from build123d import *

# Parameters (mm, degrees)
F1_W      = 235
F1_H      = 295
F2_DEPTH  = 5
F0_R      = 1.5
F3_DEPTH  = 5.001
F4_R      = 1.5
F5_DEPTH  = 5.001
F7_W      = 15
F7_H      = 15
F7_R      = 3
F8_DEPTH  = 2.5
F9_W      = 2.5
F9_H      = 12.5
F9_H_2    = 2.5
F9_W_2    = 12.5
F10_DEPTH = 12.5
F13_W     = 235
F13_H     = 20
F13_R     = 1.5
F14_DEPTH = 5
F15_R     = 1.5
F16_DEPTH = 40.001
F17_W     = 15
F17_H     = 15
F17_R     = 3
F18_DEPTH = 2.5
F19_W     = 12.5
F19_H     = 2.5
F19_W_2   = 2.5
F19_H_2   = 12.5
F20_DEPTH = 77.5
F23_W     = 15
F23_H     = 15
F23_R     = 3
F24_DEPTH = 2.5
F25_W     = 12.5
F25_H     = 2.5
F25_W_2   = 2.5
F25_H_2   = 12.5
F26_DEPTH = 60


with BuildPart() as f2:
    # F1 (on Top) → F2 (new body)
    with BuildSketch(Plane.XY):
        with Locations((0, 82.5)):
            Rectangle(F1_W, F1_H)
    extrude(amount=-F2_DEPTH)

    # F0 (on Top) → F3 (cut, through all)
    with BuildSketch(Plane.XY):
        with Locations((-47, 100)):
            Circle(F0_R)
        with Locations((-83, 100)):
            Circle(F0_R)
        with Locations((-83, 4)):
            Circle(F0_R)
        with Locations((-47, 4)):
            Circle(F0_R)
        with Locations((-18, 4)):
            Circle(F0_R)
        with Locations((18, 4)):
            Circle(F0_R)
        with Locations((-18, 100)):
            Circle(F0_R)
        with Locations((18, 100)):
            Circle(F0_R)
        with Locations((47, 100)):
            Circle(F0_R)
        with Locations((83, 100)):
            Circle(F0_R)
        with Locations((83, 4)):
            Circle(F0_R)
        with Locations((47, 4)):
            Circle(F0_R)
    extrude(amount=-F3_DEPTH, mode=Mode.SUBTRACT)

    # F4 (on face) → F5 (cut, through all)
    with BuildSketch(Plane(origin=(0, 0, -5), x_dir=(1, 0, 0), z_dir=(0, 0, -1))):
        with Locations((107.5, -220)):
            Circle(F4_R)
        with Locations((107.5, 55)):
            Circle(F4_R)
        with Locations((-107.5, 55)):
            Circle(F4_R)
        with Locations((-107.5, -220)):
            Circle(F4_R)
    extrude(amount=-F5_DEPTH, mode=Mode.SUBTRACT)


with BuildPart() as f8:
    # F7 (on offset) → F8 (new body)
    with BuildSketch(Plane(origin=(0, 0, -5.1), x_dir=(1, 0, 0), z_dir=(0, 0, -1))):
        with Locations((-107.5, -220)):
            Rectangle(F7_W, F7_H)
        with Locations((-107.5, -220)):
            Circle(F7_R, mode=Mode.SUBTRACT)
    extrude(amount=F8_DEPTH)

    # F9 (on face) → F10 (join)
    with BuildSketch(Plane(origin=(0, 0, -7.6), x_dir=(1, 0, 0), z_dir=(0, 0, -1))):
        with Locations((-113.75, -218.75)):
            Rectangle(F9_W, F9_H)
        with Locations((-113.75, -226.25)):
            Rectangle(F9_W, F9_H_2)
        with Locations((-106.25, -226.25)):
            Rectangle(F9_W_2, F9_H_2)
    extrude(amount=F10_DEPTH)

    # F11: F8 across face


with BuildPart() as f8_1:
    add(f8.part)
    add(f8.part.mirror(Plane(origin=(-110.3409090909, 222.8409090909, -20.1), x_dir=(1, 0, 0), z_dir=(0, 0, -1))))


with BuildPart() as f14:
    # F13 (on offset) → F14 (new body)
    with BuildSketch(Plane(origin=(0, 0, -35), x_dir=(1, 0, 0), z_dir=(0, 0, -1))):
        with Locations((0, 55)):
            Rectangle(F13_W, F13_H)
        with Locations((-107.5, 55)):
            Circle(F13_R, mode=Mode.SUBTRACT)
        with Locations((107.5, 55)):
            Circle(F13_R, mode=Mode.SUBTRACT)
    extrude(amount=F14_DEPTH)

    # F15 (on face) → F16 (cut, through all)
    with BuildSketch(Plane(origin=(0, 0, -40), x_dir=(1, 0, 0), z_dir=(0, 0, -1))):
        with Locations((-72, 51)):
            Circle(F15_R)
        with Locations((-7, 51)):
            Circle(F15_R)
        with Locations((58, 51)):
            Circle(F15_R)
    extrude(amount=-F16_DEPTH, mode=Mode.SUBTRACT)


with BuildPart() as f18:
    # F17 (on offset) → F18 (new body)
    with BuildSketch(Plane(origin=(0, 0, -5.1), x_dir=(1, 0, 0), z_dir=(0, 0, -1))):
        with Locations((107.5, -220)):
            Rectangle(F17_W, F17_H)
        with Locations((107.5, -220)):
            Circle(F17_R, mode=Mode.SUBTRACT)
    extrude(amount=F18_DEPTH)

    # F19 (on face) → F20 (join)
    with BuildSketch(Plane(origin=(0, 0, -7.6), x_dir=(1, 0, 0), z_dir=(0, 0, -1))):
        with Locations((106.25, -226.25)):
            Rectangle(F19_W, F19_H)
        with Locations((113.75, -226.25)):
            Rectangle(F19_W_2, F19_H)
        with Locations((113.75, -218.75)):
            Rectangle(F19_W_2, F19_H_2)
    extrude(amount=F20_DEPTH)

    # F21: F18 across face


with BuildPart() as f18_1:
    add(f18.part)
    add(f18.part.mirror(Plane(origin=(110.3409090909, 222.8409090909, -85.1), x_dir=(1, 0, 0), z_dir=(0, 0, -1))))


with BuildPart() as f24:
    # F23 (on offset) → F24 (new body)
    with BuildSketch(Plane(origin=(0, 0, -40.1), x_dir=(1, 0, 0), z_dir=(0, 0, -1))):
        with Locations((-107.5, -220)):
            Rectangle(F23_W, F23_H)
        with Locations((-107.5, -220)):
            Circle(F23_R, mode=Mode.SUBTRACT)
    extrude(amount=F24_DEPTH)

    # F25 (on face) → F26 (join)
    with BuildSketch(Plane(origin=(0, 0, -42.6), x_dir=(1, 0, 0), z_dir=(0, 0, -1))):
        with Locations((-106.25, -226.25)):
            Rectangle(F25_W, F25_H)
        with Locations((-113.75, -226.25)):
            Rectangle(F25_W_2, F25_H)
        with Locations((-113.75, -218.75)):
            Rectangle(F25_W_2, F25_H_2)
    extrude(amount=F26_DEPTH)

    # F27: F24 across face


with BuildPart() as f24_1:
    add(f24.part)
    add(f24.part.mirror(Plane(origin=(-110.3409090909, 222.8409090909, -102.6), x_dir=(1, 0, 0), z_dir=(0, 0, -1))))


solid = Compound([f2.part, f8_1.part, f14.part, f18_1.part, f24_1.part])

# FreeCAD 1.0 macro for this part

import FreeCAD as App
import Part
import Sketcher
from FreeCAD import Vector
Q = App.Units.Quantity


def add_polygon(sketch, points):
    """Adds a closed chain of lines whose ends are joined by coincident constraints."""
    first, n = sketch.GeometryCount, len(points)
    for a, b in zip(points, points[1:] + points[:1]):
        sketch.addGeometry(Part.LineSegment(App.Vector(*a, 0), App.Vector(*b, 0)), False)
    for i in range(n):
        sketch.addConstraint(Sketcher.Constraint("Coincident", first + i, 2, first + (i + 1) % n, 1))

doc = App.newDocument("Part")
body = doc.addObject("PartDesign::Body", "Body")

# Sketch on XY plane
sketch1 = body.newObject("Sketcher::SketchObject", "Sketch")
sketch1.AttachmentSupport = (doc.getObject("XY_Plane"), [""])
sketch1.MapMode = "FlatFace"
add_polygon(sketch1, [(-118, 230), (-118, -65), (118, -65), (118, 230)])  # lines 0-3
sketch1.addConstraint([
    Sketcher.Constraint("Vertical", 0),
    Sketcher.Constraint("Horizontal", 1),
    Sketcher.Constraint("Vertical", 2),
    Sketcher.Constraint("Horizontal", 3),
    Sketcher.Constraint("DistanceX", 1, 1, 1, 2, Q("235 mm")),
    Sketcher.Constraint("DistanceY", 0, 2, 0, 1, Q("295 mm")),
    Sketcher.Constraint("DistanceY", 0, 2, -1, 1, Q("65 mm")),
    Sketcher.Constraint("DistanceX", 0, 2, -1, 1, Q("117.5 mm")),
])
pad1 = body.newObject("PartDesign::Pad", "Pad")
pad1.Profile = sketch1
pad1.Length = 5
pad1.Reversed = True

# Sketch on XY plane
sketch2 = body.newObject("Sketcher::SketchObject", "Sketch001")
sketch2.AttachmentSupport = (doc.getObject("XY_Plane"), [""])
sketch2.MapMode = "FlatFace"
sketch2.addGeometry([
    Part.Circle(Vector(-47, 100, 0), Vector(0, 0, 1), 1.5),  # 0
    Part.Circle(Vector(-83, 100, 0), Vector(0, 0, 1), 1.5),  # 1
    Part.Circle(Vector(-83, 4, 0), Vector(0, 0, 1), 1.5),  # 2
    Part.Circle(Vector(-47, 4, 0), Vector(0, 0, 1), 1.5),  # 3
    Part.Circle(Vector(-18, 4, 0), Vector(0, 0, 1), 1.5),  # 4
    Part.Circle(Vector(18, 4, 0), Vector(0, 0, 1), 1.5),  # 5
    Part.Circle(Vector(-18, 100, 0), Vector(0, 0, 1), 1.5),  # 6
    Part.Circle(Vector(18, 100, 0), Vector(0, 0, 1), 1.5),  # 7
    Part.Circle(Vector(47, 100, 0), Vector(0, 0, 1), 1.5),  # 8
    Part.Circle(Vector(83, 100, 0), Vector(0, 0, 1), 1.5),  # 9
    Part.Circle(Vector(83, 4, 0), Vector(0, 0, 1), 1.5),  # 10
    Part.Circle(Vector(47, 4, 0), Vector(0, 0, 1), 1.5),  # 11
], False)
sketch2.addConstraint([
    Sketcher.Constraint("Equal", 0, 1),
    Sketcher.Constraint("Equal", 1, 2),
    Sketcher.Constraint("Equal", 2, 3),
    Sketcher.Constraint("Equal", 3, 4),
    Sketcher.Constraint("Equal", 4, 5),
    Sketcher.Constraint("Equal", 5, 6),
    Sketcher.Constraint("Equal", 6, 7),
    Sketcher.Constraint("Equal", 7, 8),
    Sketcher.Constraint("Equal", 8, 9),
    Sketcher.Constraint("Equal", 9, 10),
    Sketcher.Constraint("Equal", 10, 11),
    Sketcher.Constraint("Symmetric", 4, 3, 5, 3, -2),
    Sketcher.Constraint("Symmetric", 6, 3, 7, 3, -2),
    Sketcher.Constraint("Symmetric", 0, 3, 8, 3, -2),
    Sketcher.Constraint("Symmetric", 1, 3, 9, 3, -2),
    Sketcher.Constraint("Symmetric", 2, 3, 10, 3, -2),
    Sketcher.Constraint("Symmetric", 3, 3, 11, 3, -2),
    Sketcher.Constraint("Horizontal", 0, 3, 1, 3),
    Sketcher.Constraint("Horizontal", 2, 3, 3, 3),
    Sketcher.Constraint("Horizontal", 3, 3, 4, 3),
    Sketcher.Constraint("Horizontal", 1, 3, 6, 3),
    Sketcher.Constraint("Vertical", 1, 3, 2, 3),
    Sketcher.Constraint("Vertical", 0, 3, 3, 3),
    Sketcher.Constraint("Vertical", 4, 3, 6, 3),
    Sketcher.Constraint("Diameter", 0, Q("3 mm")),
    Sketcher.Constraint("DistanceX", 0, 3, -1, 1, Q("47 mm")),
    Sketcher.Constraint("DistanceY", -1, 1, 0, 3, Q("100 mm")),
    Sketcher.Constraint("DistanceX", 1, 3, -1, 1, Q("83 mm")),
    Sketcher.Constraint("DistanceY", -1, 1, 2, 3, Q("4 mm")),
    Sketcher.Constraint("DistanceX", 4, 3, -1, 1, Q("18 mm")),
])
pocket1 = body.newObject("PartDesign::Pocket", "Pocket")
pocket1.Profile = sketch2
pocket1.Type = "ThroughAll"

# Sketch on XY plane
sketch3 = body.newObject("Sketcher::SketchObject", "Sketch002")
sketch3.AttachmentSupport = (doc.getObject("XY_Plane"), [""])
sketch3.MapMode = "FlatFace"
sketch3.AttachmentOffset = App.Placement(Vector(0, 0, -5), App.Rotation())
sketch3.addGeometry([
    Part.Circle(Vector(107.5, 220, 0), Vector(0, 0, 1), 1.5),
    Part.Circle(Vector(107.5, -55, 0), Vector(0, 0, 1), 1.5),
    Part.Circle(Vector(-107.5, -55, 0), Vector(0, 0, 1), 1.5),
    Part.Circle(Vector(-107.5, 220, 0), Vector(0, 0, 1), 1.5),
], False)
sketch3.addConstraint([
    Sketcher.Constraint("Equal", 0, 1),
    Sketcher.Constraint("Equal", 1, 2),
    Sketcher.Constraint("Equal", 2, 3),
    Sketcher.Constraint("Symmetric", 1, 3, 2, 3, -2),
    Sketcher.Constraint("Symmetric", 0, 3, 3, 3, -2),
    Sketcher.Constraint("Vertical", 0, 3, 1, 3),
    Sketcher.Constraint("Diameter", 0, Q("3 mm")),
    Sketcher.Constraint("DistanceY", -1, 1, 0, 3, Q("220 mm")),
    Sketcher.Constraint("DistanceY", 1, 3, -1, 1, Q("55 mm")),
    Sketcher.Constraint("DistanceX", 2, 3, 1, 3, Q("215 mm")),
])
pocket2 = body.newObject("PartDesign::Pocket", "Pocket001")
pocket2.Profile = sketch3
pocket2.Type = "ThroughAll"
pocket2.Reversed = True
body2 = doc.addObject("PartDesign::Body", "Body001")

# Sketch on XY plane
sketch4 = body2.newObject("Sketcher::SketchObject", "Sketch003")
sketch4.AttachmentSupport = (doc.getObject("XY_Plane001"), [""])
sketch4.MapMode = "FlatFace"
sketch4.AttachmentOffset = App.Placement(Vector(0, 0, -5.1), App.Rotation())
add_polygon(sketch4, [(-115, 212.5), (-115, 227.5), (-100, 227.5), (-100, 212.5)])  # lines 0-3
sketch4.addGeometry(Part.Circle(Vector(-107.5, 220, 0), Vector(0, 0, 1), 3), False)  # 4
sketch4.addConstraint([
    Sketcher.Constraint("Vertical", 0),
    Sketcher.Constraint("Horizontal", 1),
    Sketcher.Constraint("Vertical", 2),
    Sketcher.Constraint("Horizontal", 3),
    Sketcher.Constraint("Equal", 3, 0),
    Sketcher.Constraint("Diameter", 4, Q("6 mm")),
    Sketcher.Constraint("DistanceX", 1, 1, 1, 2, Q("15 mm")),
    Sketcher.Constraint("DistanceY", -1, 1, 4, 3, Q("220 mm")),
    Sketcher.Constraint("DistanceX", 0, 2, -1, 1, Q("115 mm")),
    Sketcher.Constraint("DistanceX", 4, 3, -1, 1, Q("107.5 mm")),
    Sketcher.Constraint("DistanceY", -1, 1, 0, 2, Q("227.5 mm")),
])
pad2 = body2.newObject("PartDesign::Pad", "Pad001")
pad2.Profile = sketch4
pad2.Length = 2.5
pad2.Reversed = True

# Sketch on XY plane
sketch5 = body2.newObject("Sketcher::SketchObject", "Sketch004")
sketch5.AttachmentSupport = (doc.getObject("XY_Plane001"), [""])
sketch5.MapMode = "FlatFace"
sketch5.AttachmentOffset = App.Placement(Vector(0, 0, -7.6), App.Rotation())
add_polygon(sketch5, [(-115, 212.5), (-115, 227.5), (-100, 227.5), (-100, 225), (-112.5, 225), (-112.5, 212.5)])  # lines 0-5
sketch5.addConstraint([
    Sketcher.Constraint("Vertical", 0),
    Sketcher.Constraint("Horizontal", 1),
    Sketcher.Constraint("Vertical", 2),
    Sketcher.Constraint("Horizontal", 3),
    Sketcher.Constraint("Vertical", 4),
    Sketcher.Constraint("Horizontal", 5),
    Sketcher.Constraint("Equal", 1, 0),
    Sketcher.Constraint("Equal", 5, 2),
    Sketcher.Constraint("DistanceX", 1, 1, 1, 2, Q("15 mm")),
    Sketcher.Constraint("DistanceX", 3, 2, 3, 1, Q("12.5 mm")),
    Sketcher.Constraint("DistanceX", 0, 2, -1, 1, Q("115 mm")),
    Sketcher.Constraint("DistanceY", -1, 1, 2, 2, Q("225 mm")),
])
pad3 = body2.newObject("PartDesign::Pad", "Pad002")
pad3.Profile = sketch5
pad3.Length = 12.5
pad3.Reversed = True
body3 = doc.addObject("PartDesign::Body", "Body002")
doc.recompute()

body3.BaseFeature = body2
doc.recompute()

mirroring = doc.addObject("Part::Mirroring", "Mirroring")
mirroring.Source = body2
mirroring.Base = Vector(-110.340909, 222.840909, -20.1)
mirroring.Normal = Vector(0, 0, -1)
body4 = doc.addObject("PartDesign::Body", "Body003")
body4.BaseFeature = mirroring
boolean = body3.newObject("PartDesign::Boolean", "Boolean")
boolean.Type = "Fuse"
boolean.addObjects([body4])
doc.recompute()
body5 = doc.addObject("PartDesign::Body", "Body004")

# Sketch on XY plane
sketch6 = body5.newObject("Sketcher::SketchObject", "Sketch005")
sketch6.AttachmentSupport = (doc.getObject("XY_Plane004"), [""])
sketch6.MapMode = "FlatFace"
sketch6.AttachmentOffset = App.Placement(Vector(0, 0, -35), App.Rotation())
add_polygon(sketch6, [(-117.5, -65), (-117.5, -45), (117.5, -45), (117.5, -65)])  # lines 0-3
sketch6.addGeometry(Part.Circle(Vector(-107.5, -55, 0), Vector(0, 0, 1), 1.5), False)  # 4
sketch6.addGeometry(Part.Circle(Vector(107.5, -55, 0), Vector(0, 0, 1), 1.5), False)  # 5
sketch6.addConstraint([
    Sketcher.Constraint("Vertical", 0),
    Sketcher.Constraint("Horizontal", 1),
    Sketcher.Constraint("Vertical", 2),
    Sketcher.Constraint("Horizontal", 3),
    Sketcher.Constraint("Equal", 4, 5),
    Sketcher.Constraint("Symmetric", 4, 3, 5, 3, -2),
    Sketcher.Constraint("Diameter", 4, Q("3 mm")),
    Sketcher.Constraint("DistanceX", 1, 1, 1, 2, Q("235 mm")),
    Sketcher.Constraint("DistanceY", 0, 1, 0, 2, Q("20 mm")),
    Sketcher.Constraint("DistanceY", 4, 3, -1, 1, Q("55 mm")),
    Sketcher.Constraint("DistanceY", 0, 2, -1, 1, Q("45 mm")),
    Sketcher.Constraint("DistanceX", 4, 3, 5, 3, Q("215 mm")),
    Sketcher.Constraint("DistanceX", 0, 2, 4, 3, Q("10 mm")),
])
pad4 = body5.newObject("PartDesign::Pad", "Pad003")
pad4.Profile = sketch6
pad4.Length = 5
pad4.Reversed = True

# Sketch on XY plane
sketch7 = body5.newObject("Sketcher::SketchObject", "Sketch006")
sketch7.AttachmentSupport = (doc.getObject("XY_Plane004"), [""])
sketch7.MapMode = "FlatFace"
sketch7.AttachmentOffset = App.Placement(Vector(0, 0, -40), App.Rotation())
sketch7.addGeometry([
    Part.Circle(Vector(-72, -51, 0), Vector(0, 0, 1), 1.5),
    Part.Circle(Vector(-7, -51, 0), Vector(0, 0, 1), 1.5),
    Part.Circle(Vector(58, -51, 0), Vector(0, 0, 1), 1.5),
], False)
sketch7.addConstraint([
    Sketcher.Constraint("Equal", 0, 1),
    Sketcher.Constraint("Equal", 1, 2),
    Sketcher.Constraint("Horizontal", 0, 3, 1, 3),
    Sketcher.Constraint("Horizontal", 1, 3, 2, 3),
    Sketcher.Constraint("Diameter", 0, Q("3 mm")),
    Sketcher.Constraint("DistanceX", 0, 3, -1, 1, Q("72 mm")),
    Sketcher.Constraint("DistanceY", 0, 3, -1, 1, Q("51 mm")),
    Sketcher.Constraint("DistanceX", 1, 3, -1, 1, Q("7 mm")),
    Sketcher.Constraint("DistanceX", -1, 1, 2, 3, Q("58 mm")),
])
pocket3 = body5.newObject("PartDesign::Pocket", "Pocket002")
pocket3.Profile = sketch7
pocket3.Type = "ThroughAll"
pocket3.Reversed = True
body6 = doc.addObject("PartDesign::Body", "Body005")

# Sketch on XY plane
sketch8 = body6.newObject("Sketcher::SketchObject", "Sketch007")
sketch8.AttachmentSupport = (doc.getObject("XY_Plane005"), [""])
sketch8.MapMode = "FlatFace"
sketch8.AttachmentOffset = App.Placement(Vector(0, 0, -5.1), App.Rotation())
add_polygon(sketch8, [(100, 212.5), (100, 227.5), (115, 227.5), (115, 212.5)])  # lines 0-3
sketch8.addGeometry(Part.Circle(Vector(107.5, 220, 0), Vector(0, 0, 1), 3), False)  # 4
sketch8.addConstraint([
    Sketcher.Constraint("Vertical", 0),
    Sketcher.Constraint("Horizontal", 1),
    Sketcher.Constraint("Vertical", 2),
    Sketcher.Constraint("Horizontal", 3),
    Sketcher.Constraint("Equal", 3, 0),
    Sketcher.Constraint("Diameter", 4, Q("6 mm")),
    Sketcher.Constraint("DistanceX", 1, 1, 1, 2, Q("15 mm")),
    Sketcher.Constraint("DistanceY", -1, 1, 4, 3, Q("220 mm")),
    Sketcher.Constraint("DistanceX", -1, 1, 0, 2, Q("100 mm")),
    Sketcher.Constraint("DistanceX", -1, 1, 4, 3, Q("107.5 mm")),
    Sketcher.Constraint("DistanceY", -1, 1, 0, 2, Q("227.5 mm")),
])
pad5 = body6.newObject("PartDesign::Pad", "Pad004")
pad5.Profile = sketch8
pad5.Length = 2.5
pad5.Reversed = True

# Sketch on XY plane
sketch9 = body6.newObject("Sketcher::SketchObject", "Sketch008")
sketch9.AttachmentSupport = (doc.getObject("XY_Plane005"), [""])
sketch9.MapMode = "FlatFace"
sketch9.AttachmentOffset = App.Placement(Vector(0, 0, -7.6), App.Rotation())
add_polygon(sketch9, [(100, 225), (100, 227.5), (115, 227.5), (115, 212.5), (112.5, 212.5), (112.5, 225)])  # lines 0-5
sketch9.addConstraint([
    Sketcher.Constraint("Vertical", 0),
    Sketcher.Constraint("Horizontal", 1),
    Sketcher.Constraint("Vertical", 2),
    Sketcher.Constraint("Horizontal", 3),
    Sketcher.Constraint("Vertical", 4),
    Sketcher.Constraint("Horizontal", 5),
    Sketcher.Constraint("Equal", 3, 0),
    Sketcher.Constraint("Equal", 1, 2),
    Sketcher.Constraint("DistanceX", 1, 1, 1, 2, Q("15 mm")),
    Sketcher.Constraint("DistanceX", 3, 2, 3, 1, Q("2.5 mm")),
    Sketcher.Constraint("DistanceX", -1, 1, 0, 2, Q("100 mm")),
    Sketcher.Constraint("DistanceY", -1, 1, 4, 2, Q("225 mm")),
])
pad6 = body6.newObject("PartDesign::Pad", "Pad005")
pad6.Profile = sketch9
pad6.Length = 77.5
pad6.Reversed = True
body7 = doc.addObject("PartDesign::Body", "Body006")
doc.recompute()

body7.BaseFeature = body6
doc.recompute()

mirroring2 = doc.addObject("Part::Mirroring", "Mirroring001")
mirroring2.Source = body6
mirroring2.Base = Vector(110.340909, 222.840909, -85.1)
mirroring2.Normal = Vector(0, 0, -1)
body8 = doc.addObject("PartDesign::Body", "Body007")
body8.BaseFeature = mirroring2
boolean2 = body7.newObject("PartDesign::Boolean", "Boolean001")
boolean2.Type = "Fuse"
boolean2.addObjects([body8])
doc.recompute()
body9 = doc.addObject("PartDesign::Body", "Body008")

# Sketch on XY plane
sketch10 = body9.newObject("Sketcher::SketchObject", "Sketch009")
sketch10.AttachmentSupport = (doc.getObject("XY_Plane008"), [""])
sketch10.MapMode = "FlatFace"
sketch10.AttachmentOffset = App.Placement(Vector(0, 0, -40.1), App.Rotation())
add_polygon(sketch10, [(-115, 212.5), (-115, 227.5), (-100, 227.5), (-100, 212.5)])  # lines 0-3
sketch10.addGeometry(Part.Circle(Vector(-107.5, 220, 0), Vector(0, 0, 1), 3), False)  # 4
sketch10.addConstraint([
    Sketcher.Constraint("Vertical", 0),
    Sketcher.Constraint("Horizontal", 1),
    Sketcher.Constraint("Vertical", 2),
    Sketcher.Constraint("Horizontal", 3),
    Sketcher.Constraint("Equal", 3, 0),
    Sketcher.Constraint("Diameter", 4, Q("6 mm")),
    Sketcher.Constraint("DistanceX", 1, 1, 1, 2, Q("15 mm")),
    Sketcher.Constraint("DistanceY", -1, 1, 4, 3, Q("220 mm")),
    Sketcher.Constraint("DistanceX", 0, 2, -1, 1, Q("115 mm")),
    Sketcher.Constraint("DistanceX", 4, 3, -1, 1, Q("107.5 mm")),
    Sketcher.Constraint("DistanceY", -1, 1, 0, 2, Q("227.5 mm")),
])
pad7 = body9.newObject("PartDesign::Pad", "Pad006")
pad7.Profile = sketch10
pad7.Length = 2.5
pad7.Reversed = True

# Sketch on XY plane
sketch11 = body9.newObject("Sketcher::SketchObject", "Sketch010")
sketch11.AttachmentSupport = (doc.getObject("XY_Plane008"), [""])
sketch11.MapMode = "FlatFace"
sketch11.AttachmentOffset = App.Placement(Vector(0, 0, -42.6), App.Rotation())
add_polygon(sketch11, [(-100, 227.5), (-100, 225), (-112.5, 225), (-112.5, 212.5), (-115, 212.5), (-115, 227.5)])  # lines 0-5
sketch11.addConstraint([
    Sketcher.Constraint("Vertical", 0),
    Sketcher.Constraint("Horizontal", 1),
    Sketcher.Constraint("Vertical", 2),
    Sketcher.Constraint("Horizontal", 3),
    Sketcher.Constraint("Vertical", 4),
    Sketcher.Constraint("Horizontal", 5),
    Sketcher.Constraint("Equal", 3, 0),
    Sketcher.Constraint("Equal", 1, 2),
    Sketcher.Constraint("DistanceX", 5, 1, 5, 2, Q("15 mm")),
    Sketcher.Constraint("DistanceX", 1, 2, 1, 1, Q("12.5 mm")),
    Sketcher.Constraint("DistanceX", 0, 2, -1, 1, Q("100 mm")),
    Sketcher.Constraint("DistanceY", -1, 1, 0, 2, Q("225 mm")),
])
pad8 = body9.newObject("PartDesign::Pad", "Pad007")
pad8.Profile = sketch11
pad8.Length = 60
pad8.Reversed = True
body10 = doc.addObject("PartDesign::Body", "Body009")
doc.recompute()

body10.BaseFeature = body9
doc.recompute()

mirroring3 = doc.addObject("Part::Mirroring", "Mirroring002")
mirroring3.Source = body9
mirroring3.Base = Vector(-110.340909, 222.840909, -102.6)
mirroring3.Normal = Vector(0, 0, -1)
body11 = doc.addObject("PartDesign::Body", "Body010")
body11.BaseFeature = mirroring3
boolean3 = body10.newObject("PartDesign::Boolean", "Boolean002")
boolean3.Type = "Fuse"
boolean3.addObjects([body11])
doc.recompute()
mirroring.Visibility = False
mirroring2.Visibility = False
mirroring3.Visibility = False

doc.recompute()
